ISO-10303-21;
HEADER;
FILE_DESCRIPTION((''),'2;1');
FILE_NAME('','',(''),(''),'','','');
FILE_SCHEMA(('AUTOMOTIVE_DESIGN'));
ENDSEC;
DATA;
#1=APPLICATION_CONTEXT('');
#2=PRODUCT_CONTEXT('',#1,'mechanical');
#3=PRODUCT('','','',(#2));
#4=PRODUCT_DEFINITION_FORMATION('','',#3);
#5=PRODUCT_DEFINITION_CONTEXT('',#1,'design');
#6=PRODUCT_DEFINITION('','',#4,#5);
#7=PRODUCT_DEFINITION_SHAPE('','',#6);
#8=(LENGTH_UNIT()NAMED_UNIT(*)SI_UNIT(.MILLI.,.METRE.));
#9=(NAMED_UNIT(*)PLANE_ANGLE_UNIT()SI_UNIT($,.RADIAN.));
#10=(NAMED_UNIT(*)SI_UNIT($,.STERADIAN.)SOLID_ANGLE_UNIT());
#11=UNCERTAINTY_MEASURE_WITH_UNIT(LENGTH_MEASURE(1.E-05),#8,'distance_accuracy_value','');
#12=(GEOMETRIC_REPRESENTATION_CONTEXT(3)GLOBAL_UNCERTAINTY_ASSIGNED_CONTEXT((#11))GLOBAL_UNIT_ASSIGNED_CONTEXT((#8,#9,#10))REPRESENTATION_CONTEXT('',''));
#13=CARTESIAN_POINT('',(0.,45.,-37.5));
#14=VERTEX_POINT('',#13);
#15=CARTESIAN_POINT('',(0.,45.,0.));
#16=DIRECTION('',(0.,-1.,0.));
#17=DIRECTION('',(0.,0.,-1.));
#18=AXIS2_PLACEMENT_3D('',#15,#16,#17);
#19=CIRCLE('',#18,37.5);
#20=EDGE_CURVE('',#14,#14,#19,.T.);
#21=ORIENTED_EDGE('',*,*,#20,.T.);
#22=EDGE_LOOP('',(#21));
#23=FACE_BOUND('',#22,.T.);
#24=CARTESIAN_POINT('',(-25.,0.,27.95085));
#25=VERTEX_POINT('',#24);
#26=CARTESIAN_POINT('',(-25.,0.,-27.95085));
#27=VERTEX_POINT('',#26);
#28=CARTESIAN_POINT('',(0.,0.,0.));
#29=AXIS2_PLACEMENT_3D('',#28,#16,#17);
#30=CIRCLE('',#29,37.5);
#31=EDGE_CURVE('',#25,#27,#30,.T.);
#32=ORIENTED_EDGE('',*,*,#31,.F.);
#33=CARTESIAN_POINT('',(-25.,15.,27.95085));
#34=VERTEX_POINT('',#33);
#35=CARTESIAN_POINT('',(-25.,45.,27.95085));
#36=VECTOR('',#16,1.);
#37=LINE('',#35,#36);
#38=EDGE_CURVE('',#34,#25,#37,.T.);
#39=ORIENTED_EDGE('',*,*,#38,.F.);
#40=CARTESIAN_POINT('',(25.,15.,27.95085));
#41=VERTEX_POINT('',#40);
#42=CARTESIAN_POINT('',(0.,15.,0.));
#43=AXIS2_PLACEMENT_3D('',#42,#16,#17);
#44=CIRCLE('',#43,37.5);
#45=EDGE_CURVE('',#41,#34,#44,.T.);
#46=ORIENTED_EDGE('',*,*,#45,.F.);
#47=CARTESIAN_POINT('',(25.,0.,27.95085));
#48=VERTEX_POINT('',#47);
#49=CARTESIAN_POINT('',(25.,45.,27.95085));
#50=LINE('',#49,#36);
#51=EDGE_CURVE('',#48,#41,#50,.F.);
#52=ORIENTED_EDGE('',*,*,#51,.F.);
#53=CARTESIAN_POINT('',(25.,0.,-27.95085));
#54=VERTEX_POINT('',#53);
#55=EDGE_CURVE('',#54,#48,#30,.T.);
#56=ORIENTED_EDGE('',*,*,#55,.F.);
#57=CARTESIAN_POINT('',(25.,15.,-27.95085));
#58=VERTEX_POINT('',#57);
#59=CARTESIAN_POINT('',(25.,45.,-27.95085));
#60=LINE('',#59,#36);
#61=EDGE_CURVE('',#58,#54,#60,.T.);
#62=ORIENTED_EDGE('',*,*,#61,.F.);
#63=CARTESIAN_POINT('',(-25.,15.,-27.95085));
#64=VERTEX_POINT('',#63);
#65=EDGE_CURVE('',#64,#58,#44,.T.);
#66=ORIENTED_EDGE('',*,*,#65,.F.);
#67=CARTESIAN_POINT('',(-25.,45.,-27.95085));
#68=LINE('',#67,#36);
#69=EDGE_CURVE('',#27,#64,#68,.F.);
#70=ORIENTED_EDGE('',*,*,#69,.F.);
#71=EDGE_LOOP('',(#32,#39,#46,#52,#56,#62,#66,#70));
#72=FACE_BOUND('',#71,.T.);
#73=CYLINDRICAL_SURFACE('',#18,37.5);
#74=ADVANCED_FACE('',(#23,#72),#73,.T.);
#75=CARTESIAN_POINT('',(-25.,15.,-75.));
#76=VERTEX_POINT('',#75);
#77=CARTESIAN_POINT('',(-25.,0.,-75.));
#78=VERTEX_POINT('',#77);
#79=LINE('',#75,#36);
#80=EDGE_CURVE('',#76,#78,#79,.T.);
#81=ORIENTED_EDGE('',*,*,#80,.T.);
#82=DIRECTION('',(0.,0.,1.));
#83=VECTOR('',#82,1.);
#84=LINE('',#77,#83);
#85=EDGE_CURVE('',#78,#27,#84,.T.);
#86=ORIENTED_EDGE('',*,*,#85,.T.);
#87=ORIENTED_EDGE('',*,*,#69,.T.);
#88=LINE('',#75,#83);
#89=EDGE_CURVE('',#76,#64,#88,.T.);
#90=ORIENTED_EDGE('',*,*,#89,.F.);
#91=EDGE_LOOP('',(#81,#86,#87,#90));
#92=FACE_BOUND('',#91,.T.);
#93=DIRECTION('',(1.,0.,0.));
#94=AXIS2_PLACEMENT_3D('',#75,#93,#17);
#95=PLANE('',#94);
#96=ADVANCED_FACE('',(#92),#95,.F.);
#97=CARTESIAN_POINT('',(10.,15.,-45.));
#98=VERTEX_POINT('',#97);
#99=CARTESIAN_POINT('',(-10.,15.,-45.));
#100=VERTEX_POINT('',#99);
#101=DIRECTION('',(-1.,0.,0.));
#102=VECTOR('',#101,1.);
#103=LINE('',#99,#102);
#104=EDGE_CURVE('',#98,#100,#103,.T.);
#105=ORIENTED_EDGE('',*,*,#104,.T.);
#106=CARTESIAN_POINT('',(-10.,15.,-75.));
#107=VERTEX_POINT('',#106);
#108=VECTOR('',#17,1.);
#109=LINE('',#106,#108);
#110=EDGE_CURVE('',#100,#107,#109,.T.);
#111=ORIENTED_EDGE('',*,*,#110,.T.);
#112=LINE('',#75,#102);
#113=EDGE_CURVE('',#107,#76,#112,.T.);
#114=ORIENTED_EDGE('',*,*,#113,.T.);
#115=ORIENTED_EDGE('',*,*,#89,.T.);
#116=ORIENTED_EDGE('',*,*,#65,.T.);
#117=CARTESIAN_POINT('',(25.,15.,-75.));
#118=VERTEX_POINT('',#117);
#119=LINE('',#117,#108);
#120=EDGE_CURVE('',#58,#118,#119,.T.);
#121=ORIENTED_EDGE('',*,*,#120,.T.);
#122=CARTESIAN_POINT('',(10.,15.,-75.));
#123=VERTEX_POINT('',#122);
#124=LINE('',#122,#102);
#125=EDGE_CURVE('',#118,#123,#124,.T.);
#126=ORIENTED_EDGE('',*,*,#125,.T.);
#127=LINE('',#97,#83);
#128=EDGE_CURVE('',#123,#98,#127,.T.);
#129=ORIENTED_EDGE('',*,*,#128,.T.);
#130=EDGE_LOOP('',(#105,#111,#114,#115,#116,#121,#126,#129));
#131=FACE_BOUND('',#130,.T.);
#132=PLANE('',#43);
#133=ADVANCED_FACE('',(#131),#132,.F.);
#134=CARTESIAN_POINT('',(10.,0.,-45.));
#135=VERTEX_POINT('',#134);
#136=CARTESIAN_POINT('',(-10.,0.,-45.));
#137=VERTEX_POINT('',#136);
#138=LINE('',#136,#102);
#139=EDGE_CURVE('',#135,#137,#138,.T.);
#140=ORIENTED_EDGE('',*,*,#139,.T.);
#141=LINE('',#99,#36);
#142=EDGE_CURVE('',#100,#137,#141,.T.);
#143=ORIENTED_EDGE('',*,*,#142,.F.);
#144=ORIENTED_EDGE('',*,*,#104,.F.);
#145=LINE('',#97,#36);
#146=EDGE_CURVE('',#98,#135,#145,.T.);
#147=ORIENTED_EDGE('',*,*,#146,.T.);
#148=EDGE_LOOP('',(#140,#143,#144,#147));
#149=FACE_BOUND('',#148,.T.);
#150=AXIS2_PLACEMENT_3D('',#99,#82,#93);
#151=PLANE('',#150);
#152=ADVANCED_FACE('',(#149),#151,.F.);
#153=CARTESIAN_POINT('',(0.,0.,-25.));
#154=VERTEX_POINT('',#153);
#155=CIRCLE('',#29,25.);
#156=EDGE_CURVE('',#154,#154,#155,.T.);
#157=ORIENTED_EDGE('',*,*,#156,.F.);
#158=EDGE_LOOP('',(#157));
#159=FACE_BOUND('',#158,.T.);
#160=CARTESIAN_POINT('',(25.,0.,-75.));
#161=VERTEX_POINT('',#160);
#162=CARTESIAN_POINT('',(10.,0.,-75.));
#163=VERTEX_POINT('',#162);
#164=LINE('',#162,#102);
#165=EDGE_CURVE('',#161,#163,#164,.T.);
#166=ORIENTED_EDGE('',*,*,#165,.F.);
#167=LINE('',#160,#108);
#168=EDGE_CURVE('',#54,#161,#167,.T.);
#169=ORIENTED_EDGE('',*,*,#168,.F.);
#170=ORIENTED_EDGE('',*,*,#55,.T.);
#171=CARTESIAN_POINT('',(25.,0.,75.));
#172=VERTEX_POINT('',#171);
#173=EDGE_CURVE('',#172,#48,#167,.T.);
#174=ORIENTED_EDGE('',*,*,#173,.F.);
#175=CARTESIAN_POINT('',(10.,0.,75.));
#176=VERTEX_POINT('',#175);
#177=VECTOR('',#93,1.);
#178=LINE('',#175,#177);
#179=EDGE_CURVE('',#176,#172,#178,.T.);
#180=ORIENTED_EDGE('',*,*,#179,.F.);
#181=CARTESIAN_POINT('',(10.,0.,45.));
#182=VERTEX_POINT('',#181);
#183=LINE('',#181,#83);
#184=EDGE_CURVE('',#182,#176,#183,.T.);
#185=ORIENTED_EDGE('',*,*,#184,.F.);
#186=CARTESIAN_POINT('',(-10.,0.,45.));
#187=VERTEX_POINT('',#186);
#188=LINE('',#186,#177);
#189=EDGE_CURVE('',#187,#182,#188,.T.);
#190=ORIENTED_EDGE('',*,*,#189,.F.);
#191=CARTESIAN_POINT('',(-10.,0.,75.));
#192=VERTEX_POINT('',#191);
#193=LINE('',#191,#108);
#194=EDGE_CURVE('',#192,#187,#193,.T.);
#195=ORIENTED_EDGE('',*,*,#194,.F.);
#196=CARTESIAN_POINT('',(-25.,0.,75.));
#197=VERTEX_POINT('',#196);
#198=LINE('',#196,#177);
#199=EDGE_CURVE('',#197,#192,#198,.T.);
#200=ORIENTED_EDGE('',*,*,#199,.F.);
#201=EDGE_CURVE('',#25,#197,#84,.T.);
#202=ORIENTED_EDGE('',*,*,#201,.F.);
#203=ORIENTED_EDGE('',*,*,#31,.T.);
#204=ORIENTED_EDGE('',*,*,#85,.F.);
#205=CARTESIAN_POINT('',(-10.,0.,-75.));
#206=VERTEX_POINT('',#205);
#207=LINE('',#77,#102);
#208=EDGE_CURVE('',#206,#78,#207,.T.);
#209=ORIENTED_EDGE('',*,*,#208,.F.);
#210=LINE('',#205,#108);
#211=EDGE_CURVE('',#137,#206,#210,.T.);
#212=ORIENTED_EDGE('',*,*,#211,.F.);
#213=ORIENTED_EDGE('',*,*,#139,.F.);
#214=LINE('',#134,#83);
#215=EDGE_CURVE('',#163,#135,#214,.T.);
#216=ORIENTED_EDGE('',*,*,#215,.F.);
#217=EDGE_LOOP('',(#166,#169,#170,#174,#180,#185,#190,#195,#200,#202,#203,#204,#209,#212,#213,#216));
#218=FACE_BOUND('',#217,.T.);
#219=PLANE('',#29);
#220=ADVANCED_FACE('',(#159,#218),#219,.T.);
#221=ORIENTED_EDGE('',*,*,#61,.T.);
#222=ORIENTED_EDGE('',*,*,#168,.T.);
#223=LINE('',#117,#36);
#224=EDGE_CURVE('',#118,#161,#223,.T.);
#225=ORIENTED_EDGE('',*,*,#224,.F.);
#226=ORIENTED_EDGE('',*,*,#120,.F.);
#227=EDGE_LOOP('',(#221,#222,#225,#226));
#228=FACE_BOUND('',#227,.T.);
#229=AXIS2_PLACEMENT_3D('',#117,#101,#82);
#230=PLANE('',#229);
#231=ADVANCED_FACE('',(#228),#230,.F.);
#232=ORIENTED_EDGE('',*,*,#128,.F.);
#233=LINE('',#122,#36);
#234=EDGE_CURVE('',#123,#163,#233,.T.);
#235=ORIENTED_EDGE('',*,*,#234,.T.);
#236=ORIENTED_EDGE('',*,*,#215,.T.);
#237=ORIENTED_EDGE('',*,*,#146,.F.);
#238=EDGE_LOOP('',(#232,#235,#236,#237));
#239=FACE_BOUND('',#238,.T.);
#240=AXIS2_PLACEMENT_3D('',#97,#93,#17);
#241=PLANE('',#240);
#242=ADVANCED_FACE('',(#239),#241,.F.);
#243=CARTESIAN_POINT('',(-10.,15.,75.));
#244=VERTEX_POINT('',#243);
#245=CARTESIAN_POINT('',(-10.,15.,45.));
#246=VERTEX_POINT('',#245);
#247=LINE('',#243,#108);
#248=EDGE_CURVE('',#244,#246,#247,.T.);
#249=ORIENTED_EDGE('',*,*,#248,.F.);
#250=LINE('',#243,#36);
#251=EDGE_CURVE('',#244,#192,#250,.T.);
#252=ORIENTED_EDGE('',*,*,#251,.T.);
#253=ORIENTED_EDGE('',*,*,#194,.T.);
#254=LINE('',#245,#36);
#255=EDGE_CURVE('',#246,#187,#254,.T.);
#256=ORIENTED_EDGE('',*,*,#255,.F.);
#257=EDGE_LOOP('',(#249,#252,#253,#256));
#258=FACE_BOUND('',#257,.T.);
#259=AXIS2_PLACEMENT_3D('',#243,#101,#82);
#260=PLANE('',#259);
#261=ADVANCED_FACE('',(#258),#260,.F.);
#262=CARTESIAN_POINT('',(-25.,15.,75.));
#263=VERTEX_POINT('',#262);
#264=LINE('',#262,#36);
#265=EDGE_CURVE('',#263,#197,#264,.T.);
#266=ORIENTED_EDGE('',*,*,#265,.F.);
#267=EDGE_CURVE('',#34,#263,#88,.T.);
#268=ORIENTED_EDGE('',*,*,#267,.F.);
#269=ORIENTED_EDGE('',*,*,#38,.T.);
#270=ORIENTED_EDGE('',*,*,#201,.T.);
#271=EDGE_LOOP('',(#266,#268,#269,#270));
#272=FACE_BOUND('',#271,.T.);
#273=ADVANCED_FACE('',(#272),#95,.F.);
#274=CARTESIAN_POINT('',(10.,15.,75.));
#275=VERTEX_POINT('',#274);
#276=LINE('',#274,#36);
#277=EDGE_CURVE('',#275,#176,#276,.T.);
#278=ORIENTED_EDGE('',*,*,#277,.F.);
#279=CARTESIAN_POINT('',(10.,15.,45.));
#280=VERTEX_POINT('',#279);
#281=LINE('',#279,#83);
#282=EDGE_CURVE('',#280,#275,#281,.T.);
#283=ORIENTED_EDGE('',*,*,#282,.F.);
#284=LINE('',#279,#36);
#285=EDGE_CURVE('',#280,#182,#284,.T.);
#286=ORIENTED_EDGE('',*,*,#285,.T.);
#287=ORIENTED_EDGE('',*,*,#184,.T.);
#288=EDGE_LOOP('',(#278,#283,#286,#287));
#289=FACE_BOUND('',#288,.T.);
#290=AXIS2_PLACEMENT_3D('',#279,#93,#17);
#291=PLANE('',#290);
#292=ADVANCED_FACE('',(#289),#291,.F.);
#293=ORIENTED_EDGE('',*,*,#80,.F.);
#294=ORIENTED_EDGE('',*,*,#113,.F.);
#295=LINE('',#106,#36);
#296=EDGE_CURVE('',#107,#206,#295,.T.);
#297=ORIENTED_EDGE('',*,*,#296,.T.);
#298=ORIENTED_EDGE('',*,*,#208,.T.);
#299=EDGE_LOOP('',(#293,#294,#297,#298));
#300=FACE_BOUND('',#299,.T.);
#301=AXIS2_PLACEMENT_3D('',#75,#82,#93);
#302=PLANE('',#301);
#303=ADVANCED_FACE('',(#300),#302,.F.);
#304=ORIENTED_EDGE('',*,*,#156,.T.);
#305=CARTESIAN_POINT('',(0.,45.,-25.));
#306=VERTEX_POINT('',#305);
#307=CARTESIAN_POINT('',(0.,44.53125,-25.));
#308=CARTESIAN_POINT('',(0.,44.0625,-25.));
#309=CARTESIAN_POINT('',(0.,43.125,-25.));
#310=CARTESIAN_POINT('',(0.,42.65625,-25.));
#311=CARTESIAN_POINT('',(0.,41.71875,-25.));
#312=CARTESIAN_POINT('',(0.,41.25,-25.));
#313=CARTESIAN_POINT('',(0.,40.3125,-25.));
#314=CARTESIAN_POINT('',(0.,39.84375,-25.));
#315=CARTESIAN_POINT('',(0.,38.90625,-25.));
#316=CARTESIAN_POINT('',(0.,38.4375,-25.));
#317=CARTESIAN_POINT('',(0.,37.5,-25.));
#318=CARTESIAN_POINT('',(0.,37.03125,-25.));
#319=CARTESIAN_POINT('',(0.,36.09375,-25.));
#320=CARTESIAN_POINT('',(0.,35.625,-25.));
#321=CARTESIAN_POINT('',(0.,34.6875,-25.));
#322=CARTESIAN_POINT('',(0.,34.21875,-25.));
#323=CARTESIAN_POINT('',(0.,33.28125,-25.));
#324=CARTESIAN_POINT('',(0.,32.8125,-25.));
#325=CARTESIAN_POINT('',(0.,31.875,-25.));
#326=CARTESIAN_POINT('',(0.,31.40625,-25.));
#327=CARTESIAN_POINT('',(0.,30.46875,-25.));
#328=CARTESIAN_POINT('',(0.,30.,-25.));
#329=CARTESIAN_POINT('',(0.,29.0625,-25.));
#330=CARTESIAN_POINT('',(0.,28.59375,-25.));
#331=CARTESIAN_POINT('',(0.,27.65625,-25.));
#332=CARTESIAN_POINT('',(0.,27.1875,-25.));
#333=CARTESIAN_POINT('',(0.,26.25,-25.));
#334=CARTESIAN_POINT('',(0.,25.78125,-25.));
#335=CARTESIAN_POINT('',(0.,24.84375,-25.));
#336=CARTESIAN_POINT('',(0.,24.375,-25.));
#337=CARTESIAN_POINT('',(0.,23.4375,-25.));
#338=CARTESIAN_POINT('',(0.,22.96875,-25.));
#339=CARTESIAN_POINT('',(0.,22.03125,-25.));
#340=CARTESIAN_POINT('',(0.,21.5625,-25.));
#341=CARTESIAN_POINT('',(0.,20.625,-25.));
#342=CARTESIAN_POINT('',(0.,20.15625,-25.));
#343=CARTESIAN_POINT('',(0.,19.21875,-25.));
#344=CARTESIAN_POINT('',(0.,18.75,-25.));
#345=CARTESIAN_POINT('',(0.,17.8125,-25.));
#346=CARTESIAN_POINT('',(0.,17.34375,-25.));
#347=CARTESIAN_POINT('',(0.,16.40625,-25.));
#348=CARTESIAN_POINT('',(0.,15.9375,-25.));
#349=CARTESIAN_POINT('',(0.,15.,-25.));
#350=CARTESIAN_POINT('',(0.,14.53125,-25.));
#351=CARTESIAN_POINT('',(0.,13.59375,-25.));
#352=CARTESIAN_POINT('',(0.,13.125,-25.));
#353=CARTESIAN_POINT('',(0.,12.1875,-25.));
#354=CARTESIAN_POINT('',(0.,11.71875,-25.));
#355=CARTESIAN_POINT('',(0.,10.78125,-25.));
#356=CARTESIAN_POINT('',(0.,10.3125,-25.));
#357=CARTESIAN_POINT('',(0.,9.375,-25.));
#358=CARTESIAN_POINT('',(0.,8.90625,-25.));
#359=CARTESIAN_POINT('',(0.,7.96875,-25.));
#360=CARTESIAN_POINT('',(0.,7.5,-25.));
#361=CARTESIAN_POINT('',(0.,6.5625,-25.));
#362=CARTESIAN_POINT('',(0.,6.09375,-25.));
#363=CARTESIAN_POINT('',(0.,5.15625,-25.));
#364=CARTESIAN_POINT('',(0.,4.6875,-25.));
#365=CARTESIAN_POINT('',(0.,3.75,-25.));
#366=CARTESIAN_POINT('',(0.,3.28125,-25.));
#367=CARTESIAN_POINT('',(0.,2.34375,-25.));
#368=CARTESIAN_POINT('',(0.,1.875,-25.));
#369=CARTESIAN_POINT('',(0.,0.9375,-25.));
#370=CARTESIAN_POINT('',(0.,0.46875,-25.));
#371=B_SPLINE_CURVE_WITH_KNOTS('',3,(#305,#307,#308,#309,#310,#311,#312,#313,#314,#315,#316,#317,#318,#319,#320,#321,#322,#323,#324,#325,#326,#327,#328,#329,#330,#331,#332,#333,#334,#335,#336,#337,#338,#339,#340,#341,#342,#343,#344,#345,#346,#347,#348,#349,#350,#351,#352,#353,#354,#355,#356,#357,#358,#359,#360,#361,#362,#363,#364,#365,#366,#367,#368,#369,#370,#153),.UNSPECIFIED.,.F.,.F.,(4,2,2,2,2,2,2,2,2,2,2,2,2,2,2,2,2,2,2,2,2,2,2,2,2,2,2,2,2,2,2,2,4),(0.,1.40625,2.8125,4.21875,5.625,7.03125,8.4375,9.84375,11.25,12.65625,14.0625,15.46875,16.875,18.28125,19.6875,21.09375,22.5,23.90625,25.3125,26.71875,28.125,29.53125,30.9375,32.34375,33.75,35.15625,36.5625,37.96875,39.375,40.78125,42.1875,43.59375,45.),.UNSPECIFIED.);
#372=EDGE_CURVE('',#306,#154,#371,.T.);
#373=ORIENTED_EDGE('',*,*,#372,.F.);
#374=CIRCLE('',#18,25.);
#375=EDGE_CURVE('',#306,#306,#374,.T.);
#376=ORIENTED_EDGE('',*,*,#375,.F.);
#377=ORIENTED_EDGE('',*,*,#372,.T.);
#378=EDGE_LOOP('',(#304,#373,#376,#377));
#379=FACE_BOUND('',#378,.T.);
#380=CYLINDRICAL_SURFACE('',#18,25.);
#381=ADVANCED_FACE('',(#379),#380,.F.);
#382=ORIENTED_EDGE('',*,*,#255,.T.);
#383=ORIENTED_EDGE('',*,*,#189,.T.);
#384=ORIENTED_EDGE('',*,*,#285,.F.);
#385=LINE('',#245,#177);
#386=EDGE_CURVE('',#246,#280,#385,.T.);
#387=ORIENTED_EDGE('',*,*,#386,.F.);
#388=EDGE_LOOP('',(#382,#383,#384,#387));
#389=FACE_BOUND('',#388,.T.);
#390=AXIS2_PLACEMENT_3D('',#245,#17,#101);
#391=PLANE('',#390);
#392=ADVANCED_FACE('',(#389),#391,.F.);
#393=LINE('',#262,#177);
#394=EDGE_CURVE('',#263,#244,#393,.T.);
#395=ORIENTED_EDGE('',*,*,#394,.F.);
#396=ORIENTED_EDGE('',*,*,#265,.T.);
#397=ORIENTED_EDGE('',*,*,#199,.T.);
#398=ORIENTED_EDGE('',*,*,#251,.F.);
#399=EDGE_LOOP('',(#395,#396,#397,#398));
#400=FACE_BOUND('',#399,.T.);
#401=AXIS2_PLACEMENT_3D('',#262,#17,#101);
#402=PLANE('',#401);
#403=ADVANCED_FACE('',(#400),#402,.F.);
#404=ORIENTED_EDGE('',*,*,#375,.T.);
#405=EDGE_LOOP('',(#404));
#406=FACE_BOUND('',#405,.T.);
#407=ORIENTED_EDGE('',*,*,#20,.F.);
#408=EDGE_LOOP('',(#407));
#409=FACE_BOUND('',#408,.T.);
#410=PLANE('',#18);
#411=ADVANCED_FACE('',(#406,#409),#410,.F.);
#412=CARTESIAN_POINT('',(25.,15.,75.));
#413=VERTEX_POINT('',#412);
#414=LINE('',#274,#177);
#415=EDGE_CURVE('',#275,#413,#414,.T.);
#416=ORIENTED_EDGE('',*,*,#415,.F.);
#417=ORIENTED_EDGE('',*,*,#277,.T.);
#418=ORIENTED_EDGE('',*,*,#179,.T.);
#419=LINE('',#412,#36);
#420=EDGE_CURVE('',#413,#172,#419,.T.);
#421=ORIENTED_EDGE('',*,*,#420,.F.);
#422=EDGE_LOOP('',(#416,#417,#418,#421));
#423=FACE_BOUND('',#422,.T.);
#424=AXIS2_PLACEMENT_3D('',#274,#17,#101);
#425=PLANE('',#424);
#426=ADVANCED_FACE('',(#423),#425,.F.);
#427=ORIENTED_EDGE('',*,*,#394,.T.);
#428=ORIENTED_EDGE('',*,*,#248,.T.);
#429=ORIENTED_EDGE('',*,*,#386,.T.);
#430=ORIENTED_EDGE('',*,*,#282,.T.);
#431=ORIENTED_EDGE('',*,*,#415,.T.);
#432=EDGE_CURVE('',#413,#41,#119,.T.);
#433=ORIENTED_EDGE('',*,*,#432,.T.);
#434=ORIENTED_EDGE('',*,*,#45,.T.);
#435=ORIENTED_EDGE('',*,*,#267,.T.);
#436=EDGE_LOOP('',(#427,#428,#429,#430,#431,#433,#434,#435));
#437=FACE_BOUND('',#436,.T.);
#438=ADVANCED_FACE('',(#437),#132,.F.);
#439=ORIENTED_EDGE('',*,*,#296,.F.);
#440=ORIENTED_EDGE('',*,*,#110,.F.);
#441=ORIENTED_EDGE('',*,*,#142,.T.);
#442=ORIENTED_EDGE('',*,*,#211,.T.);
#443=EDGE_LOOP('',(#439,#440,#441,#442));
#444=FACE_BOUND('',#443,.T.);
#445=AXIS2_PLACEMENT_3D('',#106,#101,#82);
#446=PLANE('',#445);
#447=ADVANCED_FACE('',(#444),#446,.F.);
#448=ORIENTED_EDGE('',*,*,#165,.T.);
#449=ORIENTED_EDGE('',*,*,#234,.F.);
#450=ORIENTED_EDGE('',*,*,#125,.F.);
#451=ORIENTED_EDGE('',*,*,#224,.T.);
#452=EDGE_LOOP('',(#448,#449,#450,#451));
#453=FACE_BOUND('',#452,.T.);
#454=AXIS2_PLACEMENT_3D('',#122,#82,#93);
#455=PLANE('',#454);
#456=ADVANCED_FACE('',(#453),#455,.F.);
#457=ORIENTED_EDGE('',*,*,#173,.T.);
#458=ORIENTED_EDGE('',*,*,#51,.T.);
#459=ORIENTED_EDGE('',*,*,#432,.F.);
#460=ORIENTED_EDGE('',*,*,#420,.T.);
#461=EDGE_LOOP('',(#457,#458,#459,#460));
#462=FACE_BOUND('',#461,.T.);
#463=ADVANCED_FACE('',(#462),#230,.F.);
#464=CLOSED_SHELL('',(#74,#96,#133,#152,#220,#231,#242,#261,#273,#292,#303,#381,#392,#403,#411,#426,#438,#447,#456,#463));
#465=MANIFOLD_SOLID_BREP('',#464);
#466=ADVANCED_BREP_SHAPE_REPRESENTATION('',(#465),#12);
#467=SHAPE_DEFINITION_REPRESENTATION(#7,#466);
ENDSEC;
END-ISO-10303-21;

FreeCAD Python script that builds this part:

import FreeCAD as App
import Part
import Sketcher
Q = App.Units.Quantity

doc = App.newDocument("Part")
body = doc.addObject("PartDesign::Body", "Body")

# Sketch on XZ plane
sketch1 = body.newObject("Sketcher::SketchObject", "Sketch")
sketch1.AttachmentSupport = (doc.getObject("XZ_Plane"), [""])
sketch1.MapMode = "FlatFace"
sketch1.addGeometry([
    Part.LineSegment(App.Vector(-25, -75, 0), App.Vector(-25, 75, 0)),  # 0
    Part.LineSegment(App.Vector(-25, 75, 0), App.Vector(-10, 75, 0)),  # 1
    Part.LineSegment(App.Vector(-10, 75, 0), App.Vector(-10, 45, 0)),  # 2
    Part.LineSegment(App.Vector(-10, 45, 0), App.Vector(10, 45, 0)),  # 3
    Part.LineSegment(App.Vector(10, 45, 0), App.Vector(10, 75, 0)),  # 4
    Part.LineSegment(App.Vector(10, 75, 0), App.Vector(25, 75, 0)),  # 5
    Part.LineSegment(App.Vector(25, 75, 0), App.Vector(25, -75, 0)),  # 6
    Part.LineSegment(App.Vector(25, -75, 0), App.Vector(10, -75, 0)),  # 7
    Part.LineSegment(App.Vector(10, -75, 0), App.Vector(10, -45, 0)),  # 8
    Part.LineSegment(App.Vector(10, -45, 0), App.Vector(-10, -45, 0)),  # 9
    Part.LineSegment(App.Vector(-10, -45, 0), App.Vector(-10, -75, 0)),  # 10
    Part.LineSegment(App.Vector(-10, -75, 0), App.Vector(-25, -75, 0)),  # 11
], False)
sketch1.addConstraint([
    Sketcher.Constraint("Coincident", 0, 2, 1, 1),
    Sketcher.Constraint("Coincident", 1, 2, 2, 1),
    Sketcher.Constraint("Coincident", 2, 2, 3, 1),
    Sketcher.Constraint("Coincident", 3, 2, 4, 1),
    Sketcher.Constraint("Coincident", 4, 2, 5, 1),
    Sketcher.Constraint("Coincident", 5, 2, 6, 1),
    Sketcher.Constraint("Coincident", 6, 2, 7, 1),
    Sketcher.Constraint("Coincident", 7, 2, 8, 1),
    Sketcher.Constraint("Coincident", 8, 2, 9, 1),
    Sketcher.Constraint("Coincident", 9, 2, 10, 1),
    Sketcher.Constraint("Coincident", 10, 2, 11, 1),
    Sketcher.Constraint("Coincident", 11, 2, 0, 1),
    Sketcher.Constraint("Vertical", 0),
    Sketcher.Constraint("Horizontal", 1),
    Sketcher.Constraint("Vertical", 2),
    Sketcher.Constraint("Horizontal", 3),
    Sketcher.Constraint("Vertical", 4),
    Sketcher.Constraint("Horizontal", 5),
    Sketcher.Constraint("Vertical", 6),
    Sketcher.Constraint("Horizontal", 7),
    Sketcher.Constraint("Vertical", 8),
    Sketcher.Constraint("Horizontal", 9),
    Sketcher.Constraint("Vertical", 10),
    Sketcher.Constraint("Horizontal", 11),
    Sketcher.Constraint("Symmetric", 0, 2, 6, 2, -1, 1),
    Sketcher.Constraint("Symmetric", 2, 2, 8, 2, -1, 1),
    Sketcher.Constraint("Symmetric", 4, 2, 10, 2, -1, 1),
    Sketcher.Constraint("Symmetric", 1, 2, 4, 2, -2),
    Sketcher.Constraint("DistanceX", 1, 1, 1, 2, Q("15 mm")),
    Sketcher.Constraint("DistanceX", 3, 1, 3, 2, Q("20 mm")),
    Sketcher.Constraint("DistanceY", 0, 1, 0, 2, Q("150 mm")),
    Sketcher.Constraint("DistanceY", 2, 2, 2, 1, Q("30 mm")),
])
pad1 = body.newObject("PartDesign::Pad", "Pad")
pad1.Profile = sketch1
pad1.Length = 15
pad1.Reversed = True

# Sketch on XZ plane
sketch2 = body.newObject("Sketcher::SketchObject", "Sketch001")
sketch2.AttachmentSupport = (doc.getObject("XZ_Plane"), [""])
sketch2.MapMode = "FlatFace"
sketch2.addGeometry([
    Part.Circle(App.Vector(0, 0, 0), App.Vector(0, 0, 1), 37.5),
    Part.Circle(App.Vector(0, 0, 0), App.Vector(0, 0, 1), 25),
], False)
sketch2.addConstraint([
    Sketcher.Constraint("Coincident", 0, 3, -1, 1),
    Sketcher.Constraint("Coincident", 1, 3, -1, 1),
    Sketcher.Constraint("Diameter", 0, Q("75 mm")),
    Sketcher.Constraint("Diameter", 1, Q("50 mm")),
])
pad2 = body.newObject("PartDesign::Pad", "Pad001")
pad2.Profile = sketch2
pad2.Length = 45
pad2.Reversed = True

# Sketch on XZ plane
sketch3 = body.newObject("Sketcher::SketchObject", "Sketch002")
sketch3.AttachmentSupport = (doc.getObject("XZ_Plane"), [""])
sketch3.MapMode = "FlatFace"
sketch3.AttachmentOffset = App.Placement(App.Vector(0, 0, 30), App.Rotation())
sketch3.addGeometry(Part.Circle(App.Vector(0, 0, 0), App.Vector(0, 0, 1), 25), False)
sketch3.addConstraint([
    Sketcher.Constraint("Coincident", 0, 3, -1, 1),
    Sketcher.Constraint("Diameter", 0, Q("50 mm")),
])
pocket1 = body.newObject("PartDesign::Pocket", "Pocket")
pocket1.Profile = sketch3
pocket1.Length = 45

doc.recompute()
